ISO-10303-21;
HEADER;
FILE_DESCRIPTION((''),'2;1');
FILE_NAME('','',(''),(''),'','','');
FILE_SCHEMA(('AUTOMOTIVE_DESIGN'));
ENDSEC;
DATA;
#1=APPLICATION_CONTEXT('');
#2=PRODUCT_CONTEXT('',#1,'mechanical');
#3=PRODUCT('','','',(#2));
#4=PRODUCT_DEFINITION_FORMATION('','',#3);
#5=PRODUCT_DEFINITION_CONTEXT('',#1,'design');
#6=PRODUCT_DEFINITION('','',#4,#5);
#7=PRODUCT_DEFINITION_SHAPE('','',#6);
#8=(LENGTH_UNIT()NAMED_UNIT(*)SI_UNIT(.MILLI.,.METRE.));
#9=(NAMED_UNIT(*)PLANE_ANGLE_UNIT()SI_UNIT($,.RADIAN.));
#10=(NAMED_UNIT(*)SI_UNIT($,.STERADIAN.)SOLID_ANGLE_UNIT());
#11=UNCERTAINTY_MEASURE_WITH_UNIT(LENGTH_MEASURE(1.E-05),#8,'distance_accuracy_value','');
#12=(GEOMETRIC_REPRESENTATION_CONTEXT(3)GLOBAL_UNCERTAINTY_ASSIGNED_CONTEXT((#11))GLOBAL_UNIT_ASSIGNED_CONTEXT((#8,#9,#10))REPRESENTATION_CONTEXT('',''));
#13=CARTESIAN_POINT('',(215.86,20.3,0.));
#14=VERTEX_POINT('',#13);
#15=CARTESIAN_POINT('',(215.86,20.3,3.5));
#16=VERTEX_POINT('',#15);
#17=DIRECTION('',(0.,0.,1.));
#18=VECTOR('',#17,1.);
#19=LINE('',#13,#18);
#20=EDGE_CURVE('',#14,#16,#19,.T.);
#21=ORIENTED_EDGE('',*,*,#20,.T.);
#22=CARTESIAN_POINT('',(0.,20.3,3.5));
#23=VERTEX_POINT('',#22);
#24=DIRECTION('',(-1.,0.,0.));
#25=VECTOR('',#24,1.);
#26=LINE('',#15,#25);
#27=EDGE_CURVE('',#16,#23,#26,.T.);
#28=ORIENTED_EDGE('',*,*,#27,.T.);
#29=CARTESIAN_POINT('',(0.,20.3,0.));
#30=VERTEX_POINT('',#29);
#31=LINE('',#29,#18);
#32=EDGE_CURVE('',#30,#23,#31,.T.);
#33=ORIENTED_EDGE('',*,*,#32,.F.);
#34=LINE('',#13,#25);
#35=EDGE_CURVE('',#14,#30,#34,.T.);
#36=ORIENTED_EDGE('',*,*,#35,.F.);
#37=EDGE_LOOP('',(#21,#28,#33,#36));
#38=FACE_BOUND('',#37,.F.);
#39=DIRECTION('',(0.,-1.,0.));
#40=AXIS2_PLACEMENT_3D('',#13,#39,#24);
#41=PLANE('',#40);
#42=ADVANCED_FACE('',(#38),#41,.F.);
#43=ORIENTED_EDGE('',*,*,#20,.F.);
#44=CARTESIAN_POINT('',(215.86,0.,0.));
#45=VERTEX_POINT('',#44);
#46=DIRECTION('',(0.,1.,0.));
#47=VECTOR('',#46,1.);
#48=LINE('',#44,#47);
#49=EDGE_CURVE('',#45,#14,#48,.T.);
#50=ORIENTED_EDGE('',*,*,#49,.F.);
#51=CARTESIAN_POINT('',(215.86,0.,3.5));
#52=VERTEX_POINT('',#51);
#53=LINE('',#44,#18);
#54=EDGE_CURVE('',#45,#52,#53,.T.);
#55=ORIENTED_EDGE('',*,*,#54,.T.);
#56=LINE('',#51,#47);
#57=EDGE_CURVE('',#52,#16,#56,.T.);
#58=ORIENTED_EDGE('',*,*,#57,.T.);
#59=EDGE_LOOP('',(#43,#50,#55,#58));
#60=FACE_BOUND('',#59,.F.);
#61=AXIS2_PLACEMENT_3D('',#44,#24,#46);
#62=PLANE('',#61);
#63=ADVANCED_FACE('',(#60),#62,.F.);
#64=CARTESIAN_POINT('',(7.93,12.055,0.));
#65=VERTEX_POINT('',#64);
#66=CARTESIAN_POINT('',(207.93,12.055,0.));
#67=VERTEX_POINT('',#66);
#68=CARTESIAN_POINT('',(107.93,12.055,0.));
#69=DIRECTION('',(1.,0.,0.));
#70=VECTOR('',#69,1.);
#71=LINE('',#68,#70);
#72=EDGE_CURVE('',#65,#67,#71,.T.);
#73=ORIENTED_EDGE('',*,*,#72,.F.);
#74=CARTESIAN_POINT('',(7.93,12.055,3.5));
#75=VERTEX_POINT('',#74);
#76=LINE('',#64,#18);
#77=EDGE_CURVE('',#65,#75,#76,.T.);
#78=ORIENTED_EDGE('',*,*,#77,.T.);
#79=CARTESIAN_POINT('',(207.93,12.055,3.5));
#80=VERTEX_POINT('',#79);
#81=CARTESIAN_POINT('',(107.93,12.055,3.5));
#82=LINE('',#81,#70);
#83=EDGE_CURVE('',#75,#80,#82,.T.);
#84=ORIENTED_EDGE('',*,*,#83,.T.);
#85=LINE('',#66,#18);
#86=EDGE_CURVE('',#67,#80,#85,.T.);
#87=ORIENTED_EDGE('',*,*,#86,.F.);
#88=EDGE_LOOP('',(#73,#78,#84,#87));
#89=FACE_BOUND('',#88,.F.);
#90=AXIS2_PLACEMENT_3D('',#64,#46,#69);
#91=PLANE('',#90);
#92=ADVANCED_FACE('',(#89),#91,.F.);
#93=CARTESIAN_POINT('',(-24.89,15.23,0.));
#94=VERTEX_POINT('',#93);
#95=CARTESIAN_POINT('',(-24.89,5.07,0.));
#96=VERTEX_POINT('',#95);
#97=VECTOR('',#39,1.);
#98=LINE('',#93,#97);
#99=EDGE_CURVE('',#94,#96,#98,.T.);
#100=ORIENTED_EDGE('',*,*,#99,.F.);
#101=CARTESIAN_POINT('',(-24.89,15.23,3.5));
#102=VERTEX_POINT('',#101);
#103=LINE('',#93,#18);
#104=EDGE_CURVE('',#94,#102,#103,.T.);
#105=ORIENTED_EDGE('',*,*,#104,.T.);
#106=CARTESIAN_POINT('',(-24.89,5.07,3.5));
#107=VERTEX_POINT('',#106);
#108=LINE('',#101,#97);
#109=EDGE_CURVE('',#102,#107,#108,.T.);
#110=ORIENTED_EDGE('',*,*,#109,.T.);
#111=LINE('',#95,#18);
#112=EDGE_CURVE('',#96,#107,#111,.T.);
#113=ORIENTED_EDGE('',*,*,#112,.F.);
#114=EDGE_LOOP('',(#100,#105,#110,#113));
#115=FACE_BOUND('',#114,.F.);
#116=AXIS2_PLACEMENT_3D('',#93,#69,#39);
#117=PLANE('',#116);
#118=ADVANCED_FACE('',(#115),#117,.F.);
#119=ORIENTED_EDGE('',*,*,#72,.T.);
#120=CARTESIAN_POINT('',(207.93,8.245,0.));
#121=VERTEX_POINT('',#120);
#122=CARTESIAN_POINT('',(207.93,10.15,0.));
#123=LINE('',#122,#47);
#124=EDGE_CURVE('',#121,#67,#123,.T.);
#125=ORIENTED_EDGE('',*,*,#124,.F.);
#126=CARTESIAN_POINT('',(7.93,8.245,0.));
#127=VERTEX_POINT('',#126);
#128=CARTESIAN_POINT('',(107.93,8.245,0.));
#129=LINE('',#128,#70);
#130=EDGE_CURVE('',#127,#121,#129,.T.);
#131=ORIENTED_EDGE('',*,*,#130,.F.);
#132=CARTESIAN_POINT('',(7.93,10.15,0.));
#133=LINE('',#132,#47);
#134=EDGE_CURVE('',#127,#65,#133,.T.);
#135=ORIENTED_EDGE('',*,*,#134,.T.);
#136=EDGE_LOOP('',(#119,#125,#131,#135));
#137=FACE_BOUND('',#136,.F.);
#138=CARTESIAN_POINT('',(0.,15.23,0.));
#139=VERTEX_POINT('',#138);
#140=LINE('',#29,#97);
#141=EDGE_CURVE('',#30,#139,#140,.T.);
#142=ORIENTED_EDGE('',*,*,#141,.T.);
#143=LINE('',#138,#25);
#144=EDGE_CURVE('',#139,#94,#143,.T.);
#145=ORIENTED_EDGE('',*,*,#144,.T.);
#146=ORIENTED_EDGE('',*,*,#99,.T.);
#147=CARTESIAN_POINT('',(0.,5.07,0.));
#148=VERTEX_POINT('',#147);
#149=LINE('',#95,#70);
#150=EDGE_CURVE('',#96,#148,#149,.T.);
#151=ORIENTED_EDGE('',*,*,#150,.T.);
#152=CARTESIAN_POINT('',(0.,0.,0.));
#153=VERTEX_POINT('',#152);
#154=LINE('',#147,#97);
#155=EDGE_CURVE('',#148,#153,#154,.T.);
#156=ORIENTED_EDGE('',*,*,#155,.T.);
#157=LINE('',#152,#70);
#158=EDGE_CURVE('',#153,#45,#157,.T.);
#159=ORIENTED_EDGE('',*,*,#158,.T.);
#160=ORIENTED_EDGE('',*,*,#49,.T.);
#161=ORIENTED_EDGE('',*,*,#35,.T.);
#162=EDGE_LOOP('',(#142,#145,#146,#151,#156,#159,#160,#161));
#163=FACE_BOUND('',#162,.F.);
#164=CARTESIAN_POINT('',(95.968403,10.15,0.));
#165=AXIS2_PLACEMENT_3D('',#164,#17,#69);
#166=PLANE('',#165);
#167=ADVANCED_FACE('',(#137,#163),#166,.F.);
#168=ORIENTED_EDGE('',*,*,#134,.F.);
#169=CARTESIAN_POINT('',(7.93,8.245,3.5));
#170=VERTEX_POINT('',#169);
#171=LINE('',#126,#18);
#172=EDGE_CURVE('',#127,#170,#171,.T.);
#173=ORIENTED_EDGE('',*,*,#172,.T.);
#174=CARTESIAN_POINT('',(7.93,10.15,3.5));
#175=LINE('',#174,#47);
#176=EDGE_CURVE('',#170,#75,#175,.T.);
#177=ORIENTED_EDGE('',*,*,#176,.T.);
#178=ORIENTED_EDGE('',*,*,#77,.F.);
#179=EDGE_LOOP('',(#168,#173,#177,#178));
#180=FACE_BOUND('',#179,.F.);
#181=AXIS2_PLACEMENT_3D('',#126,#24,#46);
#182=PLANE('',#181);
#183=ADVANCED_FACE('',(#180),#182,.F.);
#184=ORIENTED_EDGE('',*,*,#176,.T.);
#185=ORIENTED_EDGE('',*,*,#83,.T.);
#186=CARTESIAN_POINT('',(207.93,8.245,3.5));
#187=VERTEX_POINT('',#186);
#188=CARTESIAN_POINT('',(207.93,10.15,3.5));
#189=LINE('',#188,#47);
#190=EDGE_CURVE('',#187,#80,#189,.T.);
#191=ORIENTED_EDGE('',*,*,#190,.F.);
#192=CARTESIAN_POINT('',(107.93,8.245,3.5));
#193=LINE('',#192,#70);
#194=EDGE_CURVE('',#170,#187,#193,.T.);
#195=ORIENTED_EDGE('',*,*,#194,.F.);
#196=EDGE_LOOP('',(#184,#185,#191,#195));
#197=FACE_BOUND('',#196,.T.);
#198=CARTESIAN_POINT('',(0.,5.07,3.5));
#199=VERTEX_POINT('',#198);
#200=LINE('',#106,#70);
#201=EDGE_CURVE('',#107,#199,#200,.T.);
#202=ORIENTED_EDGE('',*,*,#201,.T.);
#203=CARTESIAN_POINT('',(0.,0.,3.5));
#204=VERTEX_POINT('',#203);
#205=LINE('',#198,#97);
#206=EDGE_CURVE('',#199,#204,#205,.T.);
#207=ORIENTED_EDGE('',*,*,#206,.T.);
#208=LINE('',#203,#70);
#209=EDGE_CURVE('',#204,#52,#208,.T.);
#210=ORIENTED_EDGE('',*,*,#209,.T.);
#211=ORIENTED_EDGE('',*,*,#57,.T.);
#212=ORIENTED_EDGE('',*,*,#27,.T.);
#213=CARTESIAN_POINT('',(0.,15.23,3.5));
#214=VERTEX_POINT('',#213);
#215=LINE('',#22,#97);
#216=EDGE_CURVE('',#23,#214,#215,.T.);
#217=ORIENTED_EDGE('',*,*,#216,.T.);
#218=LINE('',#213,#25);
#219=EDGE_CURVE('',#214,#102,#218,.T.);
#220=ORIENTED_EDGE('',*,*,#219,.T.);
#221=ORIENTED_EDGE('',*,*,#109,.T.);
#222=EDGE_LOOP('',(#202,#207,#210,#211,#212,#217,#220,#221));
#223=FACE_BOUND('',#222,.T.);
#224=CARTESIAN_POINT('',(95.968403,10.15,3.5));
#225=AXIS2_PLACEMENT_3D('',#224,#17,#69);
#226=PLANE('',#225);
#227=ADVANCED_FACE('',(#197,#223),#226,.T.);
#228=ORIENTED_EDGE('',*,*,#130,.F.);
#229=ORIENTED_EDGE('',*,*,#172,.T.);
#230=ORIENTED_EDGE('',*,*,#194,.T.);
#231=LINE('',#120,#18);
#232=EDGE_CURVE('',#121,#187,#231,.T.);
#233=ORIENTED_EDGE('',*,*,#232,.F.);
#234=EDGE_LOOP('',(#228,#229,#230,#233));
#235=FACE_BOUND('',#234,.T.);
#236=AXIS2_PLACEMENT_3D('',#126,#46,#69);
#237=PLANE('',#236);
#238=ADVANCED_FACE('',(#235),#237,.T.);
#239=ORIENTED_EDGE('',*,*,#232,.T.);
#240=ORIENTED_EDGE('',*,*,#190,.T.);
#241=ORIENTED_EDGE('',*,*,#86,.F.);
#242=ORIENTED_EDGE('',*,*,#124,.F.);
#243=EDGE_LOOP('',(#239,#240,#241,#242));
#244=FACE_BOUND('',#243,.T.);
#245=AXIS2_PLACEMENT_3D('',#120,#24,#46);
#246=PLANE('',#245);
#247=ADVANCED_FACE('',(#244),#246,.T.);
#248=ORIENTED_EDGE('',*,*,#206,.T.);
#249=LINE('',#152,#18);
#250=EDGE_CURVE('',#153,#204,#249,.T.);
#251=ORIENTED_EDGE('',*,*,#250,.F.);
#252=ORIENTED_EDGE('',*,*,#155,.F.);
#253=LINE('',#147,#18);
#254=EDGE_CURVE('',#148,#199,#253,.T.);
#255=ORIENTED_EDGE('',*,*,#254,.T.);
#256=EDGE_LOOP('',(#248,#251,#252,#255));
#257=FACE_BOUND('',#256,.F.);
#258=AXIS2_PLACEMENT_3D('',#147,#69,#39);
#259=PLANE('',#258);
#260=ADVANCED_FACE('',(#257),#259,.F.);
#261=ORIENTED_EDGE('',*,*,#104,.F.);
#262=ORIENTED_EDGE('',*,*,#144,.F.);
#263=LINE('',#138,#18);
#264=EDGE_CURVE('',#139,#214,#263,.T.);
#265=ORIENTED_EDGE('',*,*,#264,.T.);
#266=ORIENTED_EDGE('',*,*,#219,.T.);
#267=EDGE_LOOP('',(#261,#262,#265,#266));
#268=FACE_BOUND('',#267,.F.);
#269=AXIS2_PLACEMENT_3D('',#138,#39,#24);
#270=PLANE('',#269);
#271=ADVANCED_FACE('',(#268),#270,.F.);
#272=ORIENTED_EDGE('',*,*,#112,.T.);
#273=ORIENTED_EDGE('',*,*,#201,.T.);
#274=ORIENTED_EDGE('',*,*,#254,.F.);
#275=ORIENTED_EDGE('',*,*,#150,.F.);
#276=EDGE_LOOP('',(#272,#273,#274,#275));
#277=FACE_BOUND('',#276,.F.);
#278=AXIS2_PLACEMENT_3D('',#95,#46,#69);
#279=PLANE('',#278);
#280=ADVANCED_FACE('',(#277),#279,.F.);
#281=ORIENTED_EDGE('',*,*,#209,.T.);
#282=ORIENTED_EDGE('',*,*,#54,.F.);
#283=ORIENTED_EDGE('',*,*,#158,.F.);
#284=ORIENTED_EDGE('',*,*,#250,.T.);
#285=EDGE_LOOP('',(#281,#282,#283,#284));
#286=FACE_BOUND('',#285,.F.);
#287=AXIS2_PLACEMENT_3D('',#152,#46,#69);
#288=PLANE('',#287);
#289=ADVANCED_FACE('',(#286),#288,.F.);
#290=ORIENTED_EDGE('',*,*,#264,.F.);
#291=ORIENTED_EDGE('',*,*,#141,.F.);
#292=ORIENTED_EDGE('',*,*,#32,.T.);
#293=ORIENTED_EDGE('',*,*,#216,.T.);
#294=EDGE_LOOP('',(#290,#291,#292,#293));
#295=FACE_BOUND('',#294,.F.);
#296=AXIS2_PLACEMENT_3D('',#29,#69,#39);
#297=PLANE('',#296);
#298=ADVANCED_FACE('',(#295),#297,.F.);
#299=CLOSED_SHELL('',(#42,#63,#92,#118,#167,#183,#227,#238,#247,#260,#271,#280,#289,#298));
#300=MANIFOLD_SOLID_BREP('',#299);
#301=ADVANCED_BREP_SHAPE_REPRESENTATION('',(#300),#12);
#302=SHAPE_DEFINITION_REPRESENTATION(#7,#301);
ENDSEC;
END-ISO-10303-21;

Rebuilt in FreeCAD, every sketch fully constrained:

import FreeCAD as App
import Part
import Sketcher
from FreeCAD import Vector

doc = App.newDocument("Part")
body = doc.addObject("PartDesign::Body", "Body")

# Sketch on XY plane
sketch1 = body.newObject("Sketcher::SketchObject", "Sketch")
sketch1.AttachmentSupport = (doc.getObject("XY_Plane"), [""])
sketch1.MapMode = "FlatFace"
sketch1.addGeometry([
    Part.LineSegment(Vector(0, 0, 0), Vector(215.86, 0, 0)),  # 0
    Part.LineSegment(Vector(215.86, 0, 0), Vector(215.86, 20.3, 0)),  # 1
    Part.LineSegment(Vector(215.86, 20.3, 0), Vector(0, 20.3, 0)),  # 2
    Part.LineSegment(Vector(0, 20.3, 0), Vector(0, 15.23, 0)),  # 3
    Part.LineSegment(Vector(0, 15.23, 0), Vector(-24.89, 15.23, 0)),  # 4
    Part.LineSegment(Vector(-24.89, 15.23, 0), Vector(-24.89, 5.07, 0)),  # 5
    Part.LineSegment(Vector(-24.89, 5.07, 0), Vector(0, 5.07, 0)),  # 6
    Part.LineSegment(Vector(0, 5.07, 0), Vector(0, 0, 0)),  # 7
    Part.LineSegment(Vector(207.93, 8.245, 0), Vector(7.93, 8.245, 0)),  # 8
    Part.LineSegment(Vector(7.93, 8.245, 0), Vector(7.93, 12.055, 0)),  # 9
    Part.LineSegment(Vector(7.93, 12.055, 0), Vector(207.93, 12.055, 0)),  # 10
    Part.LineSegment(Vector(207.93, 12.055, 0), Vector(207.93, 8.245, 0)),  # 11
], False)
sketch1.addConstraint([
    Sketcher.Constraint("Coincident", 0, 2, 1, 1),
    Sketcher.Constraint("Coincident", 1, 2, 2, 1),
    Sketcher.Constraint("Coincident", 2, 2, 3, 1),
    Sketcher.Constraint("Coincident", 3, 2, 4, 1),
    Sketcher.Constraint("Coincident", 4, 2, 5, 1),
    Sketcher.Constraint("Coincident", 5, 2, 6, 1),
    Sketcher.Constraint("Coincident", 6, 2, 7, 1),
    Sketcher.Constraint("Coincident", 7, 2, 0, 1),
    Sketcher.Constraint("Coincident", 8, 2, 9, 1),
    Sketcher.Constraint("Coincident", 9, 2, 10, 1),
    Sketcher.Constraint("Coincident", 10, 2, 11, 1),
    Sketcher.Constraint("Coincident", 11, 2, 8, 1),
    Sketcher.Constraint("Horizontal", 0),
    Sketcher.Constraint("Vertical", 1),
    Sketcher.Constraint("Horizontal", 2),
    Sketcher.Constraint("Vertical", 3),
    Sketcher.Constraint("Horizontal", 4),
    Sketcher.Constraint("Vertical", 5),
    Sketcher.Constraint("Horizontal", 6),
    Sketcher.Constraint("Vertical", 7),
    Sketcher.Constraint("Horizontal", 8),
    Sketcher.Constraint("Vertical", 9),
    Sketcher.Constraint("Horizontal", 10),
    Sketcher.Constraint("Vertical", 11),
    Sketcher.Constraint("Coincident", 7, 2, -1, 1),
    Sketcher.Constraint("PointOnObject", 2, 2, -2),
    Sketcher.Constraint("Equal", 3, 7),
    Sketcher.Constraint("DistanceX", 8, 2, 8, 1, 200.0),
    Sketcher.Constraint("DistanceY", 1, 1, 1, 2, 20.3),
    Sketcher.Constraint("DistanceX", 0, 1, 0, 2, 215.86),
    Sketcher.Constraint("DistanceX", 4, 2, 4, 1, 24.89),
    Sketcher.Constraint("DistanceY", 3, 2, 3, 1, 5.07),
    Sketcher.Constraint("DistanceY", 9, 1, 9, 2, 3.81),
    Sketcher.Constraint("DistanceX", -1, 1, 8, 2, 7.93),
    Sketcher.Constraint("DistanceY", -1, 1, 8, 2, 8.245),
])
pad1 = body.newObject("PartDesign::Pad", "Pad")
pad1.Profile = sketch1
pad1.Length = 3.5

doc.recompute()
